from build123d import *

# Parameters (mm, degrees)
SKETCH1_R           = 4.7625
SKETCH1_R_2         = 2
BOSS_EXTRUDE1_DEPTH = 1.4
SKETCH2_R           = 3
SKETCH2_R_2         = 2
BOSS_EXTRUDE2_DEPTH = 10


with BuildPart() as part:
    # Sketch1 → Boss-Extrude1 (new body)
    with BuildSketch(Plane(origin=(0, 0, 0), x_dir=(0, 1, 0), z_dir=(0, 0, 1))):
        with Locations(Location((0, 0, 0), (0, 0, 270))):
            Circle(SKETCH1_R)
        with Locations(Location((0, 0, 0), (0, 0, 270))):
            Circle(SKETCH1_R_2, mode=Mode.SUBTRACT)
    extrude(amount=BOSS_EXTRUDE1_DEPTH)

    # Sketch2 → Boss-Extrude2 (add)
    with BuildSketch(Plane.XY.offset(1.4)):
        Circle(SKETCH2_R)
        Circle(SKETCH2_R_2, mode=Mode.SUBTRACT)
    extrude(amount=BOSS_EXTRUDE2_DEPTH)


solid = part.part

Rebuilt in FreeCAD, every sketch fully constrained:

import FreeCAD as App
import Part
import Sketcher
from FreeCAD import Vector
Q = App.Units.Quantity

doc = App.newDocument("Part")
params = doc.addObject("Spreadsheet::Sheet", "Params")
for row, (alias, value) in enumerate([
    ("sketch1_diameter", "4 mm"),
    ("pad1_length", "1.4 mm"),
    ("sketch2_diameter", "6 mm"),
    ("sketch2_diameter2", "4 mm"),
    ("pad2_length", "10 mm"),
], start=1):
    params.set(f"A{row}", alias)
    params.set(f"B{row}", "=" + value)
    params.setAlias(f"B{row}", alias)

body = doc.addObject("PartDesign::Body", "Body")

sketch1 = body.newObject("Sketcher::SketchObject", "Sketch")
sketch1.AttachmentSupport = (doc.getObject("XY_Plane"), [""])
sketch1.MapMode = "FlatFace"
sketch1.addGeometry(Part.Circle(Vector(0, 0, 0), Vector(0, 0, 1), 4.8), False)
sketch1.addGeometry(Part.Circle(Vector(0, 0, 0), Vector(0, 0, 1), 2), False)
sketch1.addConstraint(Sketcher.Constraint("Coincident", 0, 3, -1, 1))
sketch1.addConstraint(Sketcher.Constraint("Coincident", 1, 3, -1, 1))
sketch1.addConstraint(Sketcher.Constraint("Diameter", 1, Q("4 mm")))
sketch1.addConstraint(Sketcher.Constraint("Diameter", 0, Q("9.525 mm")))
sketch1.setExpression("Constraints[2]", "Params.sketch1_diameter")
pad1 = body.newObject("PartDesign::Pad", "Pad")
pad1.Profile = sketch1
pad1.setExpression("Length", "Params.pad1_length")

sketch2 = body.newObject("Sketcher::SketchObject", "Sketch001")
sketch2.AttachmentSupport = (doc.getObject("XY_Plane"), [""])
sketch2.MapMode = "FlatFace"
sketch2.AttachmentOffset = App.Placement(Vector(0, 0, 1.4), App.Rotation())
sketch2.addGeometry(Part.Circle(Vector(0, 0, 0), Vector(0, 0, 1), 3), False)
sketch2.addGeometry(Part.Circle(Vector(0, 0, 0), Vector(0, 0, 1), 2), False)
sketch2.addConstraint(Sketcher.Constraint("Coincident", 0, 3, -1, 1))
sketch2.addConstraint(Sketcher.Constraint("Coincident", 1, 3, -1, 1))
sketch2.addConstraint(Sketcher.Constraint("Diameter", 0, Q("6 mm")))
sketch2.addConstraint(Sketcher.Constraint("Diameter", 1, Q("4 mm")))
sketch2.setExpression("Constraints[2]", "Params.sketch2_diameter")
sketch2.setExpression("Constraints[3]", "Params.sketch2_diameter2")
pad2 = body.newObject("PartDesign::Pad", "Pad001")
pad2.Profile = sketch2
pad2.setExpression("Length", "Params.pad2_length")

doc.recompute()
